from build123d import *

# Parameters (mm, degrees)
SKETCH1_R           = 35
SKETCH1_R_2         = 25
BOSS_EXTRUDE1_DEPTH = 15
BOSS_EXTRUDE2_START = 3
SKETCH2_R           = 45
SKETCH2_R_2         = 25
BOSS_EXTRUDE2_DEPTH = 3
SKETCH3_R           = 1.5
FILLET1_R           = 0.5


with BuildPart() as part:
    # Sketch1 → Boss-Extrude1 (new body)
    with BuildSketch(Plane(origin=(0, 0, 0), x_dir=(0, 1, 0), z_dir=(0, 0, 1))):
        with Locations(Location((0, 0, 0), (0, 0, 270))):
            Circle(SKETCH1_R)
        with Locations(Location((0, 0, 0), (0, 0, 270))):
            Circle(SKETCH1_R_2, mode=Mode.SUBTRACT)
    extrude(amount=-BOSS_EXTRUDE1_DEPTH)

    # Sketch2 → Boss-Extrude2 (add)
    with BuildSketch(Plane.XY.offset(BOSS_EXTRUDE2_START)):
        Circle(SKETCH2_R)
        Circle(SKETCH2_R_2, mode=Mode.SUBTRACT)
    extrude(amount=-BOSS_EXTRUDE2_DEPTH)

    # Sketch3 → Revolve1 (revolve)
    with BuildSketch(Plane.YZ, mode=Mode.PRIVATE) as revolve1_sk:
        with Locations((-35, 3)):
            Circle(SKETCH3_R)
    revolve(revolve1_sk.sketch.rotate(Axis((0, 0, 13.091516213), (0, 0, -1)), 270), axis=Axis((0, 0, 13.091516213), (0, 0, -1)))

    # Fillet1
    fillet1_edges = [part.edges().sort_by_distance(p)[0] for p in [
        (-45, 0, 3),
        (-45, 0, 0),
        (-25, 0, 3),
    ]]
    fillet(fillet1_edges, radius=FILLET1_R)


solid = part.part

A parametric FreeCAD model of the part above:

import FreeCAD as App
import Part
import Sketcher

V = App.Vector


def edges_at(feature, points):
    """Names of the edges that pass closest to the given points."""
    edges = feature.Shape.Edges
    near = lambda p: min(range(len(edges)), key=lambda i: edges[i].distToShape(Part.Vertex(*p))[0])
    return sorted({f"Edge{near(p) + 1}" for p in points})

doc = App.newDocument("Part")
body = doc.addObject("PartDesign::Body", "Body")

sketch1 = body.newObject("Sketcher::SketchObject", "Sketch")
sketch1.AttachmentSupport = (doc.getObject("XY_Plane"), [""])
sketch1.MapMode = "FlatFace"
sketch1.addGeometry([
    Part.Circle(V(0, 0, 0), V(0, 0, 1), 35),
    Part.Circle(V(0, 0, 0), V(0, 0, 1), 25),
], False)
sketch1.addConstraint([
    Sketcher.Constraint("Coincident", 0, 3, -1, 1),
    Sketcher.Constraint("Coincident", 1, 3, -1, 1),
    Sketcher.Constraint("Diameter", 0, 70.0),
    Sketcher.Constraint("Diameter", 1, 50.0),
])
pad1 = body.newObject("PartDesign::Pad", "Pad")
pad1.Profile = sketch1
pad1.Length = 15
pad1.Reversed = True

sketch2 = body.newObject("Sketcher::SketchObject", "Sketch001")
sketch2.AttachmentSupport = (doc.getObject("XY_Plane"), [""])
sketch2.MapMode = "FlatFace"
sketch2.AttachmentOffset = App.Placement(V(0, 0, 3), App.Rotation())
sketch2.addGeometry([
    Part.Circle(V(0, 0, 0), V(0, 0, 1), 45),
    Part.Circle(V(0, 0, 0), V(0, 0, 1), 25),
], False)
sketch2.addConstraint([
    Sketcher.Constraint("Coincident", 0, 3, -1, 1),
    Sketcher.Constraint("Coincident", 1, 3, -1, 1),
    Sketcher.Constraint("Diameter", 0, 90.0),
    Sketcher.Constraint("Diameter", 1, 50.0),
])
pad2 = body.newObject("PartDesign::Pad", "Pad001")
pad2.Profile = sketch2
pad2.Length = 3
pad2.Reversed = True

sketch3 = body.newObject("Sketcher::SketchObject", "Sketch002")
sketch3.AttachmentSupport = (doc.getObject("YZ_Plane"), [""])
sketch3.MapMode = "FlatFace"
sketch3.addGeometry(Part.Circle(V(-35, 3, 0), V(0, 0, 1), 1.5), False)
sketch3.addConstraint([
    Sketcher.Constraint("Diameter", 0, 3.0),
    Sketcher.Constraint("DistanceX", 0, 3, -1, 1, 35.0),
    Sketcher.Constraint("DistanceY", -1, 1, 0, 3, 3.0),
])
revolution = body.newObject("PartDesign::Revolution", "Revolution")
revolution.Profile = sketch3
revolution.ReferenceAxis = (sketch3, ["V_Axis"])
revolution.Angle = 360
doc.recompute()

fillet = body.newObject("PartDesign::Fillet", "Fillet")
fillet.Base = (revolution, edges_at(revolution, [(-45, 0, 3), (-45, 0, 0), (-25, 0, 3)]))
fillet.Radius = 0.5

doc.recompute()
